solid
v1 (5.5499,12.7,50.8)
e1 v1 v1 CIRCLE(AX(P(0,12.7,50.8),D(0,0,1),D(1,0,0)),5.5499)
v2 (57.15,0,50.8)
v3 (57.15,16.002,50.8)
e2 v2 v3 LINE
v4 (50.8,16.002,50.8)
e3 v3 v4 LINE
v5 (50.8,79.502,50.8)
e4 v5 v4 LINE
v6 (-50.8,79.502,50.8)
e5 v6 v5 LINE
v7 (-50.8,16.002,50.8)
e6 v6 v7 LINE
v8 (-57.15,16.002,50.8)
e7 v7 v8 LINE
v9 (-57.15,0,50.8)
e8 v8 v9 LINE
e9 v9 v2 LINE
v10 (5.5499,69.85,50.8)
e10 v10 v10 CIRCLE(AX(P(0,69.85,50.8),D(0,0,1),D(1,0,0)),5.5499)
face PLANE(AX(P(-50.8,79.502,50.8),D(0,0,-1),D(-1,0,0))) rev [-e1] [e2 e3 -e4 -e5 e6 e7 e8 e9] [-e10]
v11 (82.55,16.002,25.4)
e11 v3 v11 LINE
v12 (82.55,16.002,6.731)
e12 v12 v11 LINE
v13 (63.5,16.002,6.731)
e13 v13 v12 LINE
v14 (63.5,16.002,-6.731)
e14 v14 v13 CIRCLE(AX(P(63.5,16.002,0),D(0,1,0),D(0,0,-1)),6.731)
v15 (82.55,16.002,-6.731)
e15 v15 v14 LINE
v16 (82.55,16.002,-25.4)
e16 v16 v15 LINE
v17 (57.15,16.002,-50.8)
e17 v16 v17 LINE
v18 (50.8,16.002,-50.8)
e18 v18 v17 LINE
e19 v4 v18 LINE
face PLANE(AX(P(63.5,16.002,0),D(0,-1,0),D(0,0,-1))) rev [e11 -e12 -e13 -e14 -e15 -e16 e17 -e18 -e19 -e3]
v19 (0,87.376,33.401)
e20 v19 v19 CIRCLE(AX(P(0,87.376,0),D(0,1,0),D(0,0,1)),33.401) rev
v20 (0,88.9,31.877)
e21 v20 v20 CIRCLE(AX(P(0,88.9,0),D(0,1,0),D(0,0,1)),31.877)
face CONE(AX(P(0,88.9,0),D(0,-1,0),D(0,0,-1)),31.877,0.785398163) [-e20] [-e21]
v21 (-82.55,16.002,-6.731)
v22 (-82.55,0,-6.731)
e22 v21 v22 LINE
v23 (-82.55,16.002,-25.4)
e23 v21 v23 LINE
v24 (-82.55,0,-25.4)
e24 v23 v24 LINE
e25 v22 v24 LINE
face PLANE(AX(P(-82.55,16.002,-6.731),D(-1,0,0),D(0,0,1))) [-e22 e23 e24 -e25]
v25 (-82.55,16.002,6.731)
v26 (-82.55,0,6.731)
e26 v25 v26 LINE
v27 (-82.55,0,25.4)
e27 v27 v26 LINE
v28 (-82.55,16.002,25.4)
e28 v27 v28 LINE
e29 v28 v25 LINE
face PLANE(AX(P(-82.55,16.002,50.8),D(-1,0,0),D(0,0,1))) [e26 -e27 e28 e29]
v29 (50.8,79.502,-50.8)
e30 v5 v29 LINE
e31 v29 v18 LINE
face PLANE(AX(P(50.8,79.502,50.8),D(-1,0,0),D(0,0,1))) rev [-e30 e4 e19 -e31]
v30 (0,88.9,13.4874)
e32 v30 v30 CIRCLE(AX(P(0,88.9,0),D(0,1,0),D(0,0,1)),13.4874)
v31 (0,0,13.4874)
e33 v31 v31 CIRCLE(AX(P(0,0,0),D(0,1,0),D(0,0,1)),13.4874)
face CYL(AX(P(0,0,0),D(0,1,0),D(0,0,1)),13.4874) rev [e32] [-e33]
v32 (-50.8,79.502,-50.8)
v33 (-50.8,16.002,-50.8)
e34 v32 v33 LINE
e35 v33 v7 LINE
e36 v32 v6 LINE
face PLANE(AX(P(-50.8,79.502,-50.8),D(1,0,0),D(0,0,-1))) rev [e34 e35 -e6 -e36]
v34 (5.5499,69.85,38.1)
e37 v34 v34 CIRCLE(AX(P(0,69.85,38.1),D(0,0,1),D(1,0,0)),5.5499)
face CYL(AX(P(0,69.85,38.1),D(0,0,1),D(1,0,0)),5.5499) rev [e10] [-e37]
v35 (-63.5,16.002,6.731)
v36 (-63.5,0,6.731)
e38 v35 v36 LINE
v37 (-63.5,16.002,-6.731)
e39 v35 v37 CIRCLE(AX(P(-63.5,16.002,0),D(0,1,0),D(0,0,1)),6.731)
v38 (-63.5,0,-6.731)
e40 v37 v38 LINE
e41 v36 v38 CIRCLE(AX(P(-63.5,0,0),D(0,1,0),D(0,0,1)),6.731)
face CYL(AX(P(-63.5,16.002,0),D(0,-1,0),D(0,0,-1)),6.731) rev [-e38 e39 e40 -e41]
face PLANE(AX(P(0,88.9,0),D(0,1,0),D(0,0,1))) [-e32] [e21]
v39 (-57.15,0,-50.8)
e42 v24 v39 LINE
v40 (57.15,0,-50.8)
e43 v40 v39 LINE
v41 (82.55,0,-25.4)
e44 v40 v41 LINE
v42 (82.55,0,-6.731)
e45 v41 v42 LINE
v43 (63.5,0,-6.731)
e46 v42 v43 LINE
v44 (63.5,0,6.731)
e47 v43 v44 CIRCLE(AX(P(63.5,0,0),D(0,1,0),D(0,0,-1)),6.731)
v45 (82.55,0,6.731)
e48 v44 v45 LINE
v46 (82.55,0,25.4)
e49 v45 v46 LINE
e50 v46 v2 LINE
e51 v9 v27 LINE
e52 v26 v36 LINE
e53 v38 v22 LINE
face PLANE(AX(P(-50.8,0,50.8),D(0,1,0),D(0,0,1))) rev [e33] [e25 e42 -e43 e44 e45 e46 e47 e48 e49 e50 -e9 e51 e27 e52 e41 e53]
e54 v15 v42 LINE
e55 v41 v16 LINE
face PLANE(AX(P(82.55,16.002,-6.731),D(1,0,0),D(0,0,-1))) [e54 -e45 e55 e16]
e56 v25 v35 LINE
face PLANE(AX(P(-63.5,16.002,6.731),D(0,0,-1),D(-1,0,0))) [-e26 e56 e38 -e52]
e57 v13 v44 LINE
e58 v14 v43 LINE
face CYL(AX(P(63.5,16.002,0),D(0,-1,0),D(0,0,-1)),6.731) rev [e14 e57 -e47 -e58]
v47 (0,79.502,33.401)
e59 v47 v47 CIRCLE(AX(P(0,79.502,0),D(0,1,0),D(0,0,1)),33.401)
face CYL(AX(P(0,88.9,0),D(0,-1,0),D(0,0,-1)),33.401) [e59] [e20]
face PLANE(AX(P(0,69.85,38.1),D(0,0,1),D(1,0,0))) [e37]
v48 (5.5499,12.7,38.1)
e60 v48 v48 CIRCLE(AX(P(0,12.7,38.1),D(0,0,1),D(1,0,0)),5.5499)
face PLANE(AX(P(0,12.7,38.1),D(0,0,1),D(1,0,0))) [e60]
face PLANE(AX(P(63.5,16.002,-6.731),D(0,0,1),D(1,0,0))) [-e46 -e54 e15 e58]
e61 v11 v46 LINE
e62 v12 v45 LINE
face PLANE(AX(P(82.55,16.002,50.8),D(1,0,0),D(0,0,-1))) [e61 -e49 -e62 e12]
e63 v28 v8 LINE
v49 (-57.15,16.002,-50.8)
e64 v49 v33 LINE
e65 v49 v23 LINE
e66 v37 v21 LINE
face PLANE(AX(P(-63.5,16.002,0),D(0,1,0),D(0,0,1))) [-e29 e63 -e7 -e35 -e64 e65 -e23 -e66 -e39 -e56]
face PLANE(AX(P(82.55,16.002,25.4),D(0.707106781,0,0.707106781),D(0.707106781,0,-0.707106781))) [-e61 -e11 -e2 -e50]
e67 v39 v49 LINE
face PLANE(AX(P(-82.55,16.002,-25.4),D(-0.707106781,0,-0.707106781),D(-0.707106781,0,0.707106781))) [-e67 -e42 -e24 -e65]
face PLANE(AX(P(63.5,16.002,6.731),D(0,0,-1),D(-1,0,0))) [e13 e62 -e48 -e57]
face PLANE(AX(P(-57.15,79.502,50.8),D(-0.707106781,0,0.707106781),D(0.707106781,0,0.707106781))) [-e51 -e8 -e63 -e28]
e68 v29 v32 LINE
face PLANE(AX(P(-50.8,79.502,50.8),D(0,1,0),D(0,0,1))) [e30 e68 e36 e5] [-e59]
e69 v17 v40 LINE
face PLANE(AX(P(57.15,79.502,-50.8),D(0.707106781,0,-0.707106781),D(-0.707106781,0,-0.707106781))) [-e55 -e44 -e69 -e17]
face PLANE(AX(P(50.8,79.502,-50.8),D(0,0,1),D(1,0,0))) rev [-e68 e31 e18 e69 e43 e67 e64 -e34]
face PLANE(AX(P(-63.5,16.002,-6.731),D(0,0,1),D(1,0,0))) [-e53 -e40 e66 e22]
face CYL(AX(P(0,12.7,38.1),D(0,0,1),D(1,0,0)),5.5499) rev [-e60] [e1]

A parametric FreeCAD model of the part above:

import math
import FreeCAD as App
import Part
import Sketcher
from FreeCAD import Vector
Q = App.Units.Quantity


def edges_at(feature, points):
    """Names of the edges that pass closest to the given points."""
    edges = feature.Shape.Edges
    near = lambda p: min(range(len(edges)), key=lambda i: edges[i].distToShape(Part.Vertex(*p))[0])
    return sorted({f"Edge{near(p) + 1}" for p in points})


def add_polygon(sketch, points):
    """Adds a closed chain of lines whose ends are joined by coincident constraints."""
    first, n = sketch.GeometryCount, len(points)
    for a, b in zip(points, points[1:] + points[:1]):
        sketch.addGeometry(Part.LineSegment(App.Vector(*a, 0), App.Vector(*b, 0)), False)
    for i in range(n):
        sketch.addConstraint(Sketcher.Constraint("Coincident", first + i, 2, first + (i + 1) % n, 1))

doc = App.newDocument("Part")
body = doc.addObject("PartDesign::Body", "Body")

sketch1 = body.newObject("Sketcher::SketchObject", "Sketch")
sketch1.AttachmentSupport = (doc.getObject("XZ_Plane"), [""])
sketch1.MapMode = "FlatFace"
add_polygon(sketch1, [(-50.8, -50.8), (-50.8, 50.8), (50.8, 50.8), (50.8, -50.8)])
sketch1.addConstraint(Sketcher.Constraint("Vertical", 0))
sketch1.addConstraint(Sketcher.Constraint("Horizontal", 1))
sketch1.addConstraint(Sketcher.Constraint("Vertical", 2))
sketch1.addConstraint(Sketcher.Constraint("Horizontal", 3))
sketch1.addConstraint(Sketcher.Constraint("Symmetric", 0, 2, 2, 2, -1, 1))
sketch1.addConstraint(Sketcher.Constraint("Equal", 3, 0))
sketch1.addConstraint(Sketcher.Constraint("DistanceX", 1, 1, 1, 2, Q("4 in")))
pad1 = body.newObject("PartDesign::Pad", "Pad")
pad1.Profile = sketch1
pad1.Length = Q("3.13 in")
pad1.Reversed = True

sketch2 = body.newObject("Sketcher::SketchObject", "Sketch001")
sketch2.AttachmentSupport = (doc.getObject("XZ_Plane"), [""])
sketch2.MapMode = "FlatFace"
sketch2.AttachmentOffset = App.Placement(Vector(0, 0, -3.13 * 25.4), App.Rotation())
sketch2.addGeometry(Part.Circle(Vector(0, 0, 0), Vector(0, 0, 1), 33.401), False)
sketch2.addConstraint(Sketcher.Constraint("Coincident", 0, 3, -1, 1))
sketch2.addConstraint(Sketcher.Constraint("Diameter", 0, Q("2.63 in")))
pad2 = body.newObject("PartDesign::Pad", "Pad001")
pad2.Profile = sketch2
pad2.Length = Q("0.37 in")
pad2.Reversed = True
doc.recompute()

chamfer = body.newObject("PartDesign::Chamfer", "Chamfer")
chamfer.Base = (pad2, edges_at(pad2, [(0, 88.9, -33.401)]))
chamfer.Size = Q("0.06 in")

sketch3 = body.newObject("Sketcher::SketchObject", "Sketch002")
sketch3.AttachmentSupport = (doc.getObject("XZ_Plane"), [""])
sketch3.MapMode = "FlatFace"
sketch3.AttachmentOffset = App.Placement(Vector(0, 0, -3.5 * 25.4), App.Rotation())
sketch3.addGeometry(Part.Circle(Vector(0, 0, 0), Vector(0, 0, 1), 13.4874), False)
sketch3.addConstraint(Sketcher.Constraint("Coincident", 0, 3, -1, 1))
sketch3.addConstraint(Sketcher.Constraint("Diameter", 0, Q("1.062 in")))
pocket1 = body.newObject("PartDesign::Pocket", "Pocket")
pocket1.Profile = sketch3
pocket1.Type = "ThroughAll"
pocket1.Reversed = True

sketch4 = body.newObject("Sketcher::SketchObject", "Sketch003")
sketch4.AttachmentSupport = (doc.getObject("XZ_Plane"), [""])
sketch4.MapMode = "FlatFace"
sketch4.addGeometry(Part.LineSegment(Vector(82.55, 50.8, 0), Vector(50.8, 50.8, 0)), False)
sketch4.addGeometry(Part.LineSegment(Vector(50.8, 50.8, 0), Vector(50.8, -50.8, 0)), False)
sketch4.addGeometry(Part.LineSegment(Vector(50.8, -50.8, 0), Vector(82.55, -50.8, 0)), False)
sketch4.addGeometry(Part.LineSegment(Vector(82.55, -50.8, 0), Vector(82.55, -6.731, 0)), False)
sketch4.addGeometry(Part.LineSegment(Vector(82.55, -6.731, 0), Vector(63.5, -6.731, 0)), False)
sketch4.addGeometry(Part.ArcOfCircle(Part.Circle(Vector(63.5, 0, 0), Vector(0, 0, 1), 6.731), math.radians(90), math.radians(270)), False)
sketch4.addGeometry(Part.LineSegment(Vector(63.5, 6.731, 0), Vector(82.55, 6.731, 0)), False)
sketch4.addGeometry(Part.LineSegment(Vector(82.55, 6.731, 0), Vector(82.55, 50.8, 0)), False)
sketch4.addGeometry(Part.LineSegment(Vector(-82.55, -6.731, 0), Vector(-82.55, -50.8, 0)), False)
sketch4.addGeometry(Part.LineSegment(Vector(-82.55, -50.8, 0), Vector(-50.8, -50.8, 0)), False)
sketch4.addGeometry(Part.LineSegment(Vector(-50.8, -50.8, 0), Vector(-50.8, 50.8, 0)), False)
sketch4.addGeometry(Part.LineSegment(Vector(-50.8, 50.8, 0), Vector(-82.55, 50.8, 0)), False)
sketch4.addGeometry(Part.LineSegment(Vector(-82.55, 50.8, 0), Vector(-82.55, 6.731, 0)), False)
sketch4.addGeometry(Part.LineSegment(Vector(-82.55, 6.731, 0), Vector(-63.5, 6.731, 0)), False)
sketch4.addGeometry(Part.ArcOfCircle(Part.Circle(Vector(-63.5, 0, 0), Vector(0, 0, 1), 6.731), math.radians(-90), math.radians(90)), False)
sketch4.addGeometry(Part.LineSegment(Vector(-63.5, -6.731, 0), Vector(-82.55, -6.731, 0)), False)
sketch4.addConstraint(Sketcher.Constraint("Coincident", 0, 2, 1, 1))
sketch4.addConstraint(Sketcher.Constraint("Coincident", 1, 2, 2, 1))
sketch4.addConstraint(Sketcher.Constraint("Coincident", 2, 2, 3, 1))
sketch4.addConstraint(Sketcher.Constraint("Coincident", 3, 2, 4, 1))
sketch4.addConstraint(Sketcher.Constraint("Tangent", 4, 2, 5, 2))
sketch4.addConstraint(Sketcher.Constraint("Tangent", 5, 1, 6, 1))
sketch4.addConstraint(Sketcher.Constraint("Coincident", 6, 2, 7, 1))
sketch4.addConstraint(Sketcher.Constraint("Coincident", 7, 2, 0, 1))
sketch4.addConstraint(Sketcher.Constraint("Coincident", 8, 2, 9, 1))
sketch4.addConstraint(Sketcher.Constraint("Coincident", 9, 2, 10, 1))
sketch4.addConstraint(Sketcher.Constraint("Coincident", 10, 2, 11, 1))
sketch4.addConstraint(Sketcher.Constraint("Coincident", 11, 2, 12, 1))
sketch4.addConstraint(Sketcher.Constraint("Coincident", 12, 2, 13, 1))
sketch4.addConstraint(Sketcher.Constraint("Tangent", 13, 2, 14, 2))
sketch4.addConstraint(Sketcher.Constraint("Tangent", 14, 1, 15, 1))
sketch4.addConstraint(Sketcher.Constraint("Coincident", 15, 2, 8, 1))
sketch4.addConstraint(Sketcher.Constraint("Horizontal", 0))
sketch4.addConstraint(Sketcher.Constraint("Vertical", 1))
sketch4.addConstraint(Sketcher.Constraint("Horizontal", 2))
sketch4.addConstraint(Sketcher.Constraint("Vertical", 3))
sketch4.addConstraint(Sketcher.Constraint("Horizontal", 4))
sketch4.addConstraint(Sketcher.Constraint("Horizontal", 6))
sketch4.addConstraint(Sketcher.Constraint("Vertical", 7))
sketch4.addConstraint(Sketcher.Constraint("Vertical", 8))
sketch4.addConstraint(Sketcher.Constraint("Horizontal", 9))
sketch4.addConstraint(Sketcher.Constraint("Vertical", 10))
sketch4.addConstraint(Sketcher.Constraint("Horizontal", 11))
sketch4.addConstraint(Sketcher.Constraint("Vertical", 12))
sketch4.addConstraint(Sketcher.Constraint("Horizontal", 13))
sketch4.addConstraint(Sketcher.Constraint("Horizontal", 15))
sketch4.addConstraint(Sketcher.Constraint("Equal", 5, 14))
sketch4.addConstraint(Sketcher.Constraint("Symmetric", 5, 3, 14, 3, -1, 1))
sketch4.addConstraint(Sketcher.Constraint("Symmetric", 7, 2, 8, 2, -1, 1))
sketch4.addConstraint(Sketcher.Constraint("Symmetric", 1, 2, 10, 2, -1, 1))
sketch4.addConstraint(Sketcher.Constraint("Symmetric", 2, 2, 8, 2, -2))
sketch4.addConstraint(Sketcher.Constraint("Symmetric", 6, 2, 12, 2, -2))
sketch4.addConstraint(Sketcher.Constraint("DistanceY", 1, 2, 1, 1, Q("4 in")))
sketch4.addConstraint(Sketcher.Constraint("DistanceX", -1, 1, 0, 2, Q("2 in")))
sketch4.addConstraint(Sketcher.Constraint("Radius", 5, Q("0.265 in")))
sketch4.addConstraint(Sketcher.Constraint("DistanceX", 14, 3, 5, 3, Q("5 in")))
sketch4.addConstraint(Sketcher.Constraint("DistanceX", 0, 2, 0, 1, Q("1.25 in")))
pad3 = body.newObject("PartDesign::Pad", "Pad002")
pad3.Profile = sketch4
pad3.Length = Q("0.63 in")
pad3.Reversed = True
doc.recompute()

chamfer2 = body.newObject("PartDesign::Chamfer", "Chamfer001")
chamfer2.Base = (pad3, edges_at(pad3, [
    (-82.55, 8.001, -50.8),
    (82.55, 8.001, -50.8),
    (82.55, 8.001, 50.8),
    (-82.55, 8.001, 50.8),
]))
chamfer2.Size = Q("1 in")

sketch5 = body.newObject("Sketcher::SketchObject", "Sketch004")
sketch5.AttachmentSupport = (doc.getObject("XY_Plane"), [""])
sketch5.MapMode = "FlatFace"
sketch5.AttachmentOffset = App.Placement(Vector(0, 0, 2 * 25.4), App.Rotation())
sketch5.addGeometry(Part.Circle(Vector(0, 69.85, 0), Vector(0, 0, 1), 5.5499), False)
sketch5.addGeometry(Part.Circle(Vector(0, 12.7, 0), Vector(0, 0, 1), 5.5499), False)
sketch5.addConstraint(Sketcher.Constraint("Equal", 0, 1))
sketch5.addConstraint(Sketcher.Constraint("PointOnObject", 0, 3, -2))
sketch5.addConstraint(Sketcher.Constraint("PointOnObject", 1, 3, -2))
sketch5.addConstraint(Sketcher.Constraint("Diameter", 0, Q("0.437 in")))
sketch5.addConstraint(Sketcher.Constraint("DistanceY", -1, 1, 1, 3, Q("0.5 in")))
sketch5.addConstraint(Sketcher.Constraint("DistanceY", -1, 1, 0, 3, Q("2.75 in")))
pocket2 = body.newObject("PartDesign::Pocket", "Pocket001")
pocket2.Profile = sketch5
pocket2.Length = Q("0.5 in")

doc.recompute()
